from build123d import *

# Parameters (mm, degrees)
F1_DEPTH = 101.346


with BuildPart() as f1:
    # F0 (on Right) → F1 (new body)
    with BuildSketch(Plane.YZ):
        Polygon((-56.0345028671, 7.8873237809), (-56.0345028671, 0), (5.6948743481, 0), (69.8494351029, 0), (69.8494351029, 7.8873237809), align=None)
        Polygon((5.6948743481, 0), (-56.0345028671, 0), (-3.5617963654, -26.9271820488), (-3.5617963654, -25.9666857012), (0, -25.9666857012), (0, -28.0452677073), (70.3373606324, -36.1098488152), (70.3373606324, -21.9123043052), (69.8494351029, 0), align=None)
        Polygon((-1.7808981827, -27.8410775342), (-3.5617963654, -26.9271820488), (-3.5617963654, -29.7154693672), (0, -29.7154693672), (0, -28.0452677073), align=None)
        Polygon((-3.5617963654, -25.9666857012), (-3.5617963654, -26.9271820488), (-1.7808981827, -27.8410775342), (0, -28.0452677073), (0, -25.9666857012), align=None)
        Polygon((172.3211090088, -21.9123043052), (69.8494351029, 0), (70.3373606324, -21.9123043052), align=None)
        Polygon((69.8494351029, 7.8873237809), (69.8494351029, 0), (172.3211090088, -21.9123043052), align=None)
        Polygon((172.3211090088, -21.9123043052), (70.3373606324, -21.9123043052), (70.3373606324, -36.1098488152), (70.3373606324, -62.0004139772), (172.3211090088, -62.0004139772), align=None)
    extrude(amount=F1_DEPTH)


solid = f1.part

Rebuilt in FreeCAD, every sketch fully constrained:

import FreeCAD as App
import Part
import Sketcher
from FreeCAD import Vector
Q = App.Units.Quantity


def add_polygon(sketch, points):
    """Adds a closed chain of lines whose ends are joined by coincident constraints."""
    first, n = sketch.GeometryCount, len(points)
    for a, b in zip(points, points[1:] + points[:1]):
        sketch.addGeometry(Part.LineSegment(App.Vector(*a, 0), App.Vector(*b, 0)), False)
    for i in range(n):
        sketch.addConstraint(Sketcher.Constraint("Coincident", first + i, 2, first + (i + 1) % n, 1))

doc = App.newDocument("Part")
body = doc.addObject("PartDesign::Body", "Body")

# Sketch on YZ plane
sketch1 = body.newObject("Sketcher::SketchObject", "Sketch")
sketch1.AttachmentSupport = (doc.getObject("YZ_Plane"), [""])
sketch1.MapMode = "FlatFace"
add_polygon(sketch1, [(-56.034503, 7.887324), (-56.034503, 0), (-3.561796, -26.927182), (-3.561796, -29.715469), (0, -29.715469), (0, -28.045268), (70.337361, -36.109849), (70.337361, -62.000414), (172.321109, -62.000414), (172.321109, -21.912304), (69.849435, 7.887324)])  # lines 0-10
sketch1.addConstraint(Sketcher.Constraint("Vertical", 0))
sketch1.addConstraint(Sketcher.Constraint("Vertical", 2))
sketch1.addConstraint(Sketcher.Constraint("Horizontal", 3))
sketch1.addConstraint(Sketcher.Constraint("Vertical", 4))
sketch1.addConstraint(Sketcher.Constraint("Vertical", 6))
sketch1.addConstraint(Sketcher.Constraint("Horizontal", 7))
sketch1.addConstraint(Sketcher.Constraint("Vertical", 8))
sketch1.addConstraint(Sketcher.Constraint("Horizontal", 10))
sketch1.addConstraint(Sketcher.Constraint("PointOnObject", 0, 2, -1))
sketch1.addConstraint(Sketcher.Constraint("PointOnObject", 3, 2, -2))
sketch1.addConstraint(Sketcher.Constraint("DistanceY", 4, 1, 4, 2, 1.670202))
sketch1.addConstraint(Sketcher.Constraint("DistanceX", 7, 1, 7, 2, 101.983748))
sketch1.addConstraint(Sketcher.Constraint("DistanceY", 8, 1, 8, 2, 40.08811))
sketch1.addConstraint(Sketcher.Constraint("DistanceX", 3, 1, 3, 2, 3.561796))
sketch1.addConstraint(Sketcher.Constraint("DistanceX", 10, 2, 10, 1, 125.883938))
sketch1.addConstraint(Sketcher.Constraint("DistanceY", 0, 2, 0, 1, 7.887324))
sketch1.addConstraint(Sketcher.Constraint("DistanceY", 2, 2, 2, 1, 2.788287))
sketch1.addConstraint(Sketcher.Constraint("DistanceY", 6, 2, 6, 1, 25.890565))
sketch1.addConstraint(Sketcher.Constraint("DistanceY", 2, 2, -1, 1, 29.715469))
sketch1.addConstraint(Sketcher.Constraint("DistanceX", -1, 1, 5, 2, 70.337361))
sketch1.addConstraint(Sketcher.Constraint("DistanceY", 5, 2, -1, 1, 36.109849))
sketch1.addConstraint(Sketcher.Constraint("DistanceX", 1, 2, 9, 2, 73.411231))
pad1 = body.newObject("PartDesign::Pad", "Pad")
pad1.Profile = sketch1
pad1.Length = Q("3.99 in")

doc.recompute()
